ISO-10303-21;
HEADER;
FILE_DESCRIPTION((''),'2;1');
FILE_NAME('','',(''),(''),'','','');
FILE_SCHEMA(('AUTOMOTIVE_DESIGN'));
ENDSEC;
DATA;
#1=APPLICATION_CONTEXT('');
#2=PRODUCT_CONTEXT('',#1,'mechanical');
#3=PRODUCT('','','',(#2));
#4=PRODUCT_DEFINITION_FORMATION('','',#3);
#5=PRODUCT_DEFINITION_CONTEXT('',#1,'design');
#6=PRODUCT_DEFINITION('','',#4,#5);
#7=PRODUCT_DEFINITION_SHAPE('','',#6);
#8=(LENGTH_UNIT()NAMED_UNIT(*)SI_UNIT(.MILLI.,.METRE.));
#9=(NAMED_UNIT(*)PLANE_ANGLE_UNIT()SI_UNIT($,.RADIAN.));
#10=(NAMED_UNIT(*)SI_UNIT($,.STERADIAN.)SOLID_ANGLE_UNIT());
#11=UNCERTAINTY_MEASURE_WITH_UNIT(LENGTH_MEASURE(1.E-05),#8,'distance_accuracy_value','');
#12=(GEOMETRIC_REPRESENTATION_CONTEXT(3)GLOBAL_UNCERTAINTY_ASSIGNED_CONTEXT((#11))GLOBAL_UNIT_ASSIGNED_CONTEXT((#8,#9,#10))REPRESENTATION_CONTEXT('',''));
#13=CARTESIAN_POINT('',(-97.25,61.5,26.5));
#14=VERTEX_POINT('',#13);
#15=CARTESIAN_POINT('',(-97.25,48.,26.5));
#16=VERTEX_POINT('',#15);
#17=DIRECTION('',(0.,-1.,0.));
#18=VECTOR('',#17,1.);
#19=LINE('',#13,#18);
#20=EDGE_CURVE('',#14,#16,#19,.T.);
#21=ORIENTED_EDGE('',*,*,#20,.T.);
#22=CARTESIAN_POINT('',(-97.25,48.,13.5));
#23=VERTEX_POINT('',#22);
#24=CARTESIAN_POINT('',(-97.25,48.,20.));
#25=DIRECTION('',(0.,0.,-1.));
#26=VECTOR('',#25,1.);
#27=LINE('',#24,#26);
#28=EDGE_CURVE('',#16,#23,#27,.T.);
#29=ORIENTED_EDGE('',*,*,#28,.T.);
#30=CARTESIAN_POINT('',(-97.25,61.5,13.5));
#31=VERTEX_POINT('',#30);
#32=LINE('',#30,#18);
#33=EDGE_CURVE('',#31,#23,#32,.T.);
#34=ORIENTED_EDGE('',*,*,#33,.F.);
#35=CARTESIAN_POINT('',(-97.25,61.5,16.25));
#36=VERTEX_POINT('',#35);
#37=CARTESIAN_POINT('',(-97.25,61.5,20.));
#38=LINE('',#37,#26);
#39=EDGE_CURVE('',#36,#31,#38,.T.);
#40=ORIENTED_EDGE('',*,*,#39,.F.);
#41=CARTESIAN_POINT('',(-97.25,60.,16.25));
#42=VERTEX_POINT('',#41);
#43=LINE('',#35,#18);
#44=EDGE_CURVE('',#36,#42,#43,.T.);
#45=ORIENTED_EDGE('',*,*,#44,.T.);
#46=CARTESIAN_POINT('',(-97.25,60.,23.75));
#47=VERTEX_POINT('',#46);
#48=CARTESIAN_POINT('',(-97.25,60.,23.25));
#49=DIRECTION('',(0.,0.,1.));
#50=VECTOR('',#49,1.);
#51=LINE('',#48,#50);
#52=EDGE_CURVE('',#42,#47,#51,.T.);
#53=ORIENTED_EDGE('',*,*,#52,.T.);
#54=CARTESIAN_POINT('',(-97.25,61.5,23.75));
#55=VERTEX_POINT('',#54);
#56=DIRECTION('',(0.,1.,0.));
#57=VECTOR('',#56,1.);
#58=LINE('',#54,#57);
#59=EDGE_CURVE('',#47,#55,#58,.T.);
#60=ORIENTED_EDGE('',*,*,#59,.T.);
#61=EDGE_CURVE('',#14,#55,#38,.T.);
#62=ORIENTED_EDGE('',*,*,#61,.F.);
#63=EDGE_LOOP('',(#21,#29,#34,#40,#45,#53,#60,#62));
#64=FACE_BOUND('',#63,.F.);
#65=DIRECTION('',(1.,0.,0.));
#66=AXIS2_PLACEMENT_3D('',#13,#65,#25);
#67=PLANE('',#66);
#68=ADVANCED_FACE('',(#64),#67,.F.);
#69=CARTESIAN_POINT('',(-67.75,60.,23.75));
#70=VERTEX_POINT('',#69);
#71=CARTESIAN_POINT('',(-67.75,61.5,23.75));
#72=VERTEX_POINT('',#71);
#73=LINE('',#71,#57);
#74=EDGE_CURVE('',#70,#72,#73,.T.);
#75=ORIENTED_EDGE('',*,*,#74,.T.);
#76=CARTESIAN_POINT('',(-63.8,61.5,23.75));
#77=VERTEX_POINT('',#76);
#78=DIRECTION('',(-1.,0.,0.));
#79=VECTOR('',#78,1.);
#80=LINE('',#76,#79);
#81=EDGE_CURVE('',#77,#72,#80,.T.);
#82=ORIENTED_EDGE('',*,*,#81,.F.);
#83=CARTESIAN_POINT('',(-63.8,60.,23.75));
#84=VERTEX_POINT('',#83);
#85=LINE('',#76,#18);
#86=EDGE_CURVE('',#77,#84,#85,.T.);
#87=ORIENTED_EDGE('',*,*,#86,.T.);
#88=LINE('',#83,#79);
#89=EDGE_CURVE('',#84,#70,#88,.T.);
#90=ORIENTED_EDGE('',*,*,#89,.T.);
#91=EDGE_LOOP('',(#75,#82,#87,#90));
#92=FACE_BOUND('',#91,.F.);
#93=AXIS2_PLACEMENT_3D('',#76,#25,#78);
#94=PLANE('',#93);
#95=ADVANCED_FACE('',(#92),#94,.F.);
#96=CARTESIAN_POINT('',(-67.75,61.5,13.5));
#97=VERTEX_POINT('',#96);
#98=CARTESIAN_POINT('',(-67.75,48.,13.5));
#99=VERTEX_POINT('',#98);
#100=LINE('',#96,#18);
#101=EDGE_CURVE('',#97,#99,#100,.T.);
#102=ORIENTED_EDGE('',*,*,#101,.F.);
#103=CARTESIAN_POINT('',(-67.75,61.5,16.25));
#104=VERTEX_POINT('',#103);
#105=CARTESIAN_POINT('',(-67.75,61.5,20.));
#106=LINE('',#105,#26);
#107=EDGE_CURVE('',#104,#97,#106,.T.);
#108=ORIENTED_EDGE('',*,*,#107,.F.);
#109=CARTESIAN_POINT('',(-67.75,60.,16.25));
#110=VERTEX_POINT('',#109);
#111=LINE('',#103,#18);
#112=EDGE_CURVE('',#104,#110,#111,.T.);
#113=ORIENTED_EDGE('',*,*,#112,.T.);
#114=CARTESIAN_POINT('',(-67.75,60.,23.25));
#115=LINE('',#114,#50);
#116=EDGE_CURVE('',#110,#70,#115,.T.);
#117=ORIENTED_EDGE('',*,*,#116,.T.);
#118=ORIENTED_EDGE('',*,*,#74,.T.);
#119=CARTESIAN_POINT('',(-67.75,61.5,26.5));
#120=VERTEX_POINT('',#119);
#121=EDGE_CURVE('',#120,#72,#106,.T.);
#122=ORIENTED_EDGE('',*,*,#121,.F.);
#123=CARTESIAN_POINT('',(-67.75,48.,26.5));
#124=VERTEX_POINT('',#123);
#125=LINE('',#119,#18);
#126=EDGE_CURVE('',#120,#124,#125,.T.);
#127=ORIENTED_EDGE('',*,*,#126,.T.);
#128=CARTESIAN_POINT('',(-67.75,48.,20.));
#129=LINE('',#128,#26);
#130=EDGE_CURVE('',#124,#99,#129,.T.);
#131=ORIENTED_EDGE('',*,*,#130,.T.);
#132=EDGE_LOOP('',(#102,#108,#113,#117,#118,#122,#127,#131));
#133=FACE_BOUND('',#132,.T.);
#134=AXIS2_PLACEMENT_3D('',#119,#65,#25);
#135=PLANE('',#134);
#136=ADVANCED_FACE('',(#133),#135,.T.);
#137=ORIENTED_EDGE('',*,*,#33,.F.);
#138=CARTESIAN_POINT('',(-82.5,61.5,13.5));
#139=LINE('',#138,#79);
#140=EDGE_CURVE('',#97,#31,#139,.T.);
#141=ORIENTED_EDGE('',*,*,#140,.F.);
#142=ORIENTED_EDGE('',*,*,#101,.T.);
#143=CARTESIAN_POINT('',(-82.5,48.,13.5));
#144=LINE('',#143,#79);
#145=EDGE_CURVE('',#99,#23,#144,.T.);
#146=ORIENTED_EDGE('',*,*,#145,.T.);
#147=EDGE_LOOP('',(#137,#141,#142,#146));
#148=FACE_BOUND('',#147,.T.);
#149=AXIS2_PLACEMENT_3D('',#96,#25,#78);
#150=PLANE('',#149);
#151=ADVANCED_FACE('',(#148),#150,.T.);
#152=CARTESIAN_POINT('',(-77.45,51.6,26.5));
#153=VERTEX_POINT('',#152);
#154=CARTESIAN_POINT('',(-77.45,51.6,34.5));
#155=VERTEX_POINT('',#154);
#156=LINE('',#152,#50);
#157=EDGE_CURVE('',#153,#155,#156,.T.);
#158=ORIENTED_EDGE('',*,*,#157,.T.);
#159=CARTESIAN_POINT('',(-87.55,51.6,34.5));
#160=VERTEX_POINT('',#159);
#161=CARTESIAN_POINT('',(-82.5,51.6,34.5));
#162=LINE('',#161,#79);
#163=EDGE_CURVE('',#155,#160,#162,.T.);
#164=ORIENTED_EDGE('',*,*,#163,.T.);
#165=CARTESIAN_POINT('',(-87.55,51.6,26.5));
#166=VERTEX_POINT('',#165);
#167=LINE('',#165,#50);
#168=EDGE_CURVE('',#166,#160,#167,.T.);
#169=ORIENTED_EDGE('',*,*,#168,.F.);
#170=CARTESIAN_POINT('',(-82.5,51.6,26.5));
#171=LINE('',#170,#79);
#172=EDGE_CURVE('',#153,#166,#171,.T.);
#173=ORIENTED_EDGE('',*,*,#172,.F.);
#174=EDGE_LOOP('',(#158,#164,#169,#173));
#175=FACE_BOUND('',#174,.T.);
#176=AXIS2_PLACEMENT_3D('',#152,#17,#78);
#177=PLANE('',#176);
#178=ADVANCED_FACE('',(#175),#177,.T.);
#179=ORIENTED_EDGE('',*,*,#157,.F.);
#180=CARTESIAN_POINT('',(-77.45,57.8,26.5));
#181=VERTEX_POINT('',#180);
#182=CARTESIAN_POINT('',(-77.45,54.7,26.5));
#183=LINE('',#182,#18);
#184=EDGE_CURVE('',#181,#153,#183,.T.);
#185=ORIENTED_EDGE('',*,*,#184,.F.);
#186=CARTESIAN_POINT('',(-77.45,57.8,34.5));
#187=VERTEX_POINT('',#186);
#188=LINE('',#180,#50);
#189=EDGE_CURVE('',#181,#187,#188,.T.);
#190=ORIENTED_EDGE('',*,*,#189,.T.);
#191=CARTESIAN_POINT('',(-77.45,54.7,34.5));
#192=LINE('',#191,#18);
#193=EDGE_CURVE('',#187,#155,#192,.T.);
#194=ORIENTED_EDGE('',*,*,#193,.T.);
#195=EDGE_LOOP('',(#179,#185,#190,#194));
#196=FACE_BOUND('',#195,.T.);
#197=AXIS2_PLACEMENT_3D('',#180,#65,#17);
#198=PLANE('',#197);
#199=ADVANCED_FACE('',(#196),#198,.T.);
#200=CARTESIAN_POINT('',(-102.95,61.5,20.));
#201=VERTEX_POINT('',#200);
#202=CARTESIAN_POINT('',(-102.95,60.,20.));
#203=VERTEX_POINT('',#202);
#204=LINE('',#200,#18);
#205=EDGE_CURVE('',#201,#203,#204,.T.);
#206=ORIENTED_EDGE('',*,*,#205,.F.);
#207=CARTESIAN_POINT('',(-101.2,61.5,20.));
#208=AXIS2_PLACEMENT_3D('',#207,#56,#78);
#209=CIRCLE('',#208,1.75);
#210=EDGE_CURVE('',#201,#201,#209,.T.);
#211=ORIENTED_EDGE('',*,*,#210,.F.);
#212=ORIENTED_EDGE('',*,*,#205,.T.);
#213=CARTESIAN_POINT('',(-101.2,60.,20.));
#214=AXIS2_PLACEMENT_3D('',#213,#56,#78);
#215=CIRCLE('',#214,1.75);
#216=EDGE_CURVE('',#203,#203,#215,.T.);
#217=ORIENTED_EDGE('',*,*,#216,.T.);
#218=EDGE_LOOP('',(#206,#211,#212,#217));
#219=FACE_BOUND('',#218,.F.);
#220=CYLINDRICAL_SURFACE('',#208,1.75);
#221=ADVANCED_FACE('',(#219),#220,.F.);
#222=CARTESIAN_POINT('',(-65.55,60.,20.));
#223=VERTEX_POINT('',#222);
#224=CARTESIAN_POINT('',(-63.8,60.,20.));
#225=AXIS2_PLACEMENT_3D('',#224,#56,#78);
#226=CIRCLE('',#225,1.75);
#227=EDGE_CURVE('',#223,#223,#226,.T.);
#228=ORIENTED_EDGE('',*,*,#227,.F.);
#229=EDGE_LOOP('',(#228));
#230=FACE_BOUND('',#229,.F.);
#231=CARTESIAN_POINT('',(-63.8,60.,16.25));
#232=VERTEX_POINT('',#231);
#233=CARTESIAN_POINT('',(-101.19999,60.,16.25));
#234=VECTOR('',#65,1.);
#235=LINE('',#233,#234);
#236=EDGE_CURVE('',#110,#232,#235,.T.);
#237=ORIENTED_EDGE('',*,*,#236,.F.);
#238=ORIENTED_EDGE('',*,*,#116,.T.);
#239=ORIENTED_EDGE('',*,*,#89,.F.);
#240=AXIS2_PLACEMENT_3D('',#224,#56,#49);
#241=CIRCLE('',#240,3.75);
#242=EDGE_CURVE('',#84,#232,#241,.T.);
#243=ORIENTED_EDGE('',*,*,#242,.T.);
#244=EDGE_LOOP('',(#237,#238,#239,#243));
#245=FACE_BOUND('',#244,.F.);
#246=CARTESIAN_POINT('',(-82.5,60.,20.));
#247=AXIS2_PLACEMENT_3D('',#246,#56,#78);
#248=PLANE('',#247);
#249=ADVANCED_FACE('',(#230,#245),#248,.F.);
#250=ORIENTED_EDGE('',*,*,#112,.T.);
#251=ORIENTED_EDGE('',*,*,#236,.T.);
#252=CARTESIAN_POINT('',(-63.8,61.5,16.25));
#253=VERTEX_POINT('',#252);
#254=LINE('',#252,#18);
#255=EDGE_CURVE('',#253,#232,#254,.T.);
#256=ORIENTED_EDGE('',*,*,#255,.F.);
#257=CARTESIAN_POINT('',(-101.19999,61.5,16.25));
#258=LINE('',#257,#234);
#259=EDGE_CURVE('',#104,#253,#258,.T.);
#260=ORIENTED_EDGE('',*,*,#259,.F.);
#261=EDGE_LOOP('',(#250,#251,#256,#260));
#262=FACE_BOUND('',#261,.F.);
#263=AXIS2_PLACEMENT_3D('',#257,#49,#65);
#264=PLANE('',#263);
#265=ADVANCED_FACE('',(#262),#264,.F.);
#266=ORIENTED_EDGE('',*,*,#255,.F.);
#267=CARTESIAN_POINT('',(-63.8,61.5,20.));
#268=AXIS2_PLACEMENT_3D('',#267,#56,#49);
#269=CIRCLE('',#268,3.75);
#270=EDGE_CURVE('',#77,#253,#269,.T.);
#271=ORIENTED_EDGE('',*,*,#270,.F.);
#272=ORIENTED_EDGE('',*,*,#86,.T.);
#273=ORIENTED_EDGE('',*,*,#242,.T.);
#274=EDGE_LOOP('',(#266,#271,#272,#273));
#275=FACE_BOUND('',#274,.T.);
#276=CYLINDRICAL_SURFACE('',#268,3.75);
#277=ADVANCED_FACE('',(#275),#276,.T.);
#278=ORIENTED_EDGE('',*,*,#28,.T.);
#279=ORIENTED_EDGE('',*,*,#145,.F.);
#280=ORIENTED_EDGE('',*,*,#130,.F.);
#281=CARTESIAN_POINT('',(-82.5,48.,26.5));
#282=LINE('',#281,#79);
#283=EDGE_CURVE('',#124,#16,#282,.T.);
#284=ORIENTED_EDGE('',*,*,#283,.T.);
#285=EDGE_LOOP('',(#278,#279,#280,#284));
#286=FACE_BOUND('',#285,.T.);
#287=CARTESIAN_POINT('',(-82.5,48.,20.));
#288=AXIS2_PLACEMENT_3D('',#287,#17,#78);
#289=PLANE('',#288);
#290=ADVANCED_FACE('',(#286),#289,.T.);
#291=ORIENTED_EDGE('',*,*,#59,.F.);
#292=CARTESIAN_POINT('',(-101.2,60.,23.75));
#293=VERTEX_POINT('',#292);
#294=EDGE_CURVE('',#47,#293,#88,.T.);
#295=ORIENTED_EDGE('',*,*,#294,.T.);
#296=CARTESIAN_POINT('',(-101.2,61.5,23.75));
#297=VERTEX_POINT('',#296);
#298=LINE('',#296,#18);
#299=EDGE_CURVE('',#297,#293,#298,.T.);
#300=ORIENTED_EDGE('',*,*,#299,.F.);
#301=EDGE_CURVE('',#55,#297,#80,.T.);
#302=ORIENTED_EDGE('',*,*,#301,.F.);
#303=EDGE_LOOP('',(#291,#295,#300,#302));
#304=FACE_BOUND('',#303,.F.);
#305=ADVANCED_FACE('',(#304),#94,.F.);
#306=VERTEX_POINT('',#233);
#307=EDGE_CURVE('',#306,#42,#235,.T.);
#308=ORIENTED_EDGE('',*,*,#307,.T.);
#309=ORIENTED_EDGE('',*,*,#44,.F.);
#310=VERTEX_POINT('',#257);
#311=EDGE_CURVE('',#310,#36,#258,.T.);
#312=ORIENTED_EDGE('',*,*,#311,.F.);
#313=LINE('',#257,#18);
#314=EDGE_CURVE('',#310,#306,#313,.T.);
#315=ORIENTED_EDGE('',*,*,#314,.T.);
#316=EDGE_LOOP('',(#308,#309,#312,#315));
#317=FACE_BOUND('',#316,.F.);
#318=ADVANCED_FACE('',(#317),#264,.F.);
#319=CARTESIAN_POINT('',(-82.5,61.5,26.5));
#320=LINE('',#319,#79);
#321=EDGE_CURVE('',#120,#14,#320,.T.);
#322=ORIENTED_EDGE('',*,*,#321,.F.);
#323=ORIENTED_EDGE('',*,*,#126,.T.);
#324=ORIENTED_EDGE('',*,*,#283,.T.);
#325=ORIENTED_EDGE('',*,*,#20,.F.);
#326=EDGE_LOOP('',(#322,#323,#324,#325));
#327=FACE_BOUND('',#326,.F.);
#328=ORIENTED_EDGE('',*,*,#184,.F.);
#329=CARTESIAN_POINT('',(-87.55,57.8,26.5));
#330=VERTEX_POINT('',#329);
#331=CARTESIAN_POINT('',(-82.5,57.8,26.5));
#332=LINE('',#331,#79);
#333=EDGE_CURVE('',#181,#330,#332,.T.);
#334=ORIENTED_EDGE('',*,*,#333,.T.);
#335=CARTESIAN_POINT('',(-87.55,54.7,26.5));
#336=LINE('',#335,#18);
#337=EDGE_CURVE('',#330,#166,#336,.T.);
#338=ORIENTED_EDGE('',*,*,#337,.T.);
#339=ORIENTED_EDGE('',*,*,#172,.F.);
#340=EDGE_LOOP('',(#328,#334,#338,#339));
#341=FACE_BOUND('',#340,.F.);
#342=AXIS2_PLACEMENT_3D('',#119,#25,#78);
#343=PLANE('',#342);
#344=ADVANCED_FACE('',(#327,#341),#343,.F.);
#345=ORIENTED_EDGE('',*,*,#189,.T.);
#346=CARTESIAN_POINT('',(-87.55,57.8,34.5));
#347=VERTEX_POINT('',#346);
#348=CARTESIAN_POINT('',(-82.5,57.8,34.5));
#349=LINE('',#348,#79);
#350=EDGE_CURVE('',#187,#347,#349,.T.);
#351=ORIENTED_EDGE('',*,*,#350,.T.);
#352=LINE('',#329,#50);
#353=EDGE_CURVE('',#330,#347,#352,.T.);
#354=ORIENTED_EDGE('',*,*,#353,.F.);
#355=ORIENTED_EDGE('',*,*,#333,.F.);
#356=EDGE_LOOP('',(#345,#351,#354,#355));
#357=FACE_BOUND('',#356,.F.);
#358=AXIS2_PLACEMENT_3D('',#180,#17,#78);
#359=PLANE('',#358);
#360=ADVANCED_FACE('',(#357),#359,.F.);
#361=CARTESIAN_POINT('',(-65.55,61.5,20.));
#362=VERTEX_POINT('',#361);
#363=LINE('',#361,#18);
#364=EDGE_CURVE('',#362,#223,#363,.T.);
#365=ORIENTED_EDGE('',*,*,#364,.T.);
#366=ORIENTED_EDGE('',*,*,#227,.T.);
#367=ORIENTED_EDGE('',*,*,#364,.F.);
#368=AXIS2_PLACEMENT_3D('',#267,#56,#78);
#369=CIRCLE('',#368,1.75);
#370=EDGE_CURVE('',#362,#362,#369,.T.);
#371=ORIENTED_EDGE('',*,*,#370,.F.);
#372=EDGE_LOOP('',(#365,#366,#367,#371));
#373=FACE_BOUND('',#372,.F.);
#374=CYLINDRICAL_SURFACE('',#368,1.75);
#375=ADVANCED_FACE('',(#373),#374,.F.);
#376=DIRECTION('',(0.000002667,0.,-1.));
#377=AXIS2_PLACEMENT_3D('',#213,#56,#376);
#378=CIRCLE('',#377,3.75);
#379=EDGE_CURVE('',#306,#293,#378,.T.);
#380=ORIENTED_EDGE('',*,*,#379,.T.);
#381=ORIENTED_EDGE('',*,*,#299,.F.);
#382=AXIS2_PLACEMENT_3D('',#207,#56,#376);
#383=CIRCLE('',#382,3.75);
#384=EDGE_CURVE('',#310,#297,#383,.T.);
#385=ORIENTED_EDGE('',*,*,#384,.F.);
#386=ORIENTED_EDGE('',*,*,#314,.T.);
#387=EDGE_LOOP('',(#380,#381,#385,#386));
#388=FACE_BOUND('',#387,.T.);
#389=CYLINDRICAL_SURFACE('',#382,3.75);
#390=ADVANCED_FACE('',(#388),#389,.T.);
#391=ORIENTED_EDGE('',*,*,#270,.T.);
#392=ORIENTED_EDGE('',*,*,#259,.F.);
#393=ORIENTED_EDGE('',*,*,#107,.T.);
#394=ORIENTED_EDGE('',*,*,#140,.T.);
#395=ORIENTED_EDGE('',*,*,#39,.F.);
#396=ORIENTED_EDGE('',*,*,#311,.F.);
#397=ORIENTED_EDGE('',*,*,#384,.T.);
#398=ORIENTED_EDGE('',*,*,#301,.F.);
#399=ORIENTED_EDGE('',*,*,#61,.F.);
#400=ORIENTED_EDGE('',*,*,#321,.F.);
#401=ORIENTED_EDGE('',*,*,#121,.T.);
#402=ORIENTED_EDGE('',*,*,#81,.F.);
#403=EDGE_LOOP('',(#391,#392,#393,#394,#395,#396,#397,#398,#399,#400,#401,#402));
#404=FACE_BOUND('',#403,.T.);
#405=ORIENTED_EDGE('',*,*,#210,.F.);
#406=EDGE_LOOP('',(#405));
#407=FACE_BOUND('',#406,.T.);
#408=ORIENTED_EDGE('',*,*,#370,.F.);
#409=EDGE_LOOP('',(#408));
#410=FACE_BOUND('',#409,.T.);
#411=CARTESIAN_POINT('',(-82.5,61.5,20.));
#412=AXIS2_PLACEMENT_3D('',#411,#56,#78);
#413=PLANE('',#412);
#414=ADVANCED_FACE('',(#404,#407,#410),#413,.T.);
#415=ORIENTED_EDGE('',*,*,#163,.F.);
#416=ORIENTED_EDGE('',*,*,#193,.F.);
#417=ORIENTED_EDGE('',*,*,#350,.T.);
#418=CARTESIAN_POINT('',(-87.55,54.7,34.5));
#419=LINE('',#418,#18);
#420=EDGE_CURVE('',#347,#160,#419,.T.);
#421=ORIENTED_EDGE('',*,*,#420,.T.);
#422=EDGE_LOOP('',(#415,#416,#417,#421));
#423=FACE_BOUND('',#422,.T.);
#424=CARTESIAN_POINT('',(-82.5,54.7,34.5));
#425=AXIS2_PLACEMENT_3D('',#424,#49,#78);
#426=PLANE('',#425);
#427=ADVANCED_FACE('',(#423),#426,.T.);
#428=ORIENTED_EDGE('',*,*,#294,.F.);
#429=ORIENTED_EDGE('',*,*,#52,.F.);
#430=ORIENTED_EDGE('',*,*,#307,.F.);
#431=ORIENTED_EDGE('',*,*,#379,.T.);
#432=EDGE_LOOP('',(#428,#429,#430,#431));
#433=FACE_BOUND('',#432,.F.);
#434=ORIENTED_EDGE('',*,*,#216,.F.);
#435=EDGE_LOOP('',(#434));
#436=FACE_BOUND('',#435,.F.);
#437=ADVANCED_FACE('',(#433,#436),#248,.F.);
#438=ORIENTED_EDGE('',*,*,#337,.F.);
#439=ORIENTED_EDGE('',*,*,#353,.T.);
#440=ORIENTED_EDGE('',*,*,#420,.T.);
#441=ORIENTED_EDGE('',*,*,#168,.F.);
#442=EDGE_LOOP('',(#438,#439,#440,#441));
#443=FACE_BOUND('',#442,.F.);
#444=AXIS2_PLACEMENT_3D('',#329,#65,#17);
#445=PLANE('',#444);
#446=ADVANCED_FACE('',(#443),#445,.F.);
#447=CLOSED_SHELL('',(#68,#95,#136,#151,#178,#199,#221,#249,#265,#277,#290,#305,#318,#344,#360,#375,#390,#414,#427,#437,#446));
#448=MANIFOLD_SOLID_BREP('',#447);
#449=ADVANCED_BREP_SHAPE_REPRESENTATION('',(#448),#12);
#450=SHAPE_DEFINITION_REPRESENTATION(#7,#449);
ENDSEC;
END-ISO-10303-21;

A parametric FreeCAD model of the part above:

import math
import FreeCAD as App
import Part
import Sketcher

V = App.Vector
Q = App.Units.Quantity


def add_polygon(sketch, points):
    """Adds a closed chain of lines whose ends are joined by coincident constraints."""
    first, n = sketch.GeometryCount, len(points)
    for a, b in zip(points, points[1:] + points[:1]):
        sketch.addGeometry(Part.LineSegment(App.Vector(*a, 0), App.Vector(*b, 0)), False)
    for i in range(n):
        sketch.addConstraint(Sketcher.Constraint("Coincident", first + i, 2, first + (i + 1) % n, 1))

doc = App.newDocument("Part")
body = doc.addObject("PartDesign::Body", "Body")

sketch1 = doc.addObject("Sketcher::SketchObject", "Sketch")
body.addObject(sketch1)
sketch1.AttachmentSupport = (doc.XZ_Plane, [""])
sketch1.MapMode = "FlatFace"
add_polygon(sketch1, [(-14.75, 6.5), (-14.75, -6.5), (14.75, -6.5), (14.75, 6.5)])
sketch1.addConstraint(Sketcher.Constraint("Vertical", 0))
sketch1.addConstraint(Sketcher.Constraint("Horizontal", 1))
sketch1.addConstraint(Sketcher.Constraint("Vertical", 2))
sketch1.addConstraint(Sketcher.Constraint("Horizontal", 3))
sketch1.addConstraint(Sketcher.Constraint("Symmetric", 0, 2, 2, 2, -1, 1))
sketch1.addConstraint(Sketcher.Constraint("DistanceY", 0, 2, 0, 1, Q("13 mm")))
sketch1.addConstraint(Sketcher.Constraint("DistanceX", 1, 1, 1, 2, Q("29.5 mm")))
pad1 = doc.addObject("PartDesign::Pad", "Pad")
body.addObject(pad1)
pad1.Profile = sketch1
pad1.Length = 13.5

sketch2 = doc.addObject("Sketcher::SketchObject", "Sketch001")
body.addObject(sketch2)
sketch2.AttachmentSupport = (doc.XZ_Plane, [""])
sketch2.MapMode = "FlatFace"
sketch2.addGeometry(Part.ArcOfCircle(Part.Circle(V(-18.7, 0, 0), V(0, 0, 1), 3.75), math.radians(90), math.radians(270)), False)
sketch2.addGeometry(Part.LineSegment(V(-18.7, 3.75, 0), V(18.69999, 3.75, 0)), False)
sketch2.addGeometry(Part.ArcOfCircle(Part.Circle(V(18.7, 0, 0), V(0, 0, 1), 3.75), math.radians(-90), math.radians(90.000153)), False)
sketch2.addGeometry(Part.LineSegment(V(18.7, -3.75, 0), V(-18.7, -3.75, 0)), False)
sketch2.addGeometry(Part.Circle(V(-18.7, 0, 0), V(0, 0, 1), 1.75), False)
sketch2.addGeometry(Part.Circle(V(18.7, 0, 0), V(0, 0, 1), 1.75), False)
sketch2.addConstraint(Sketcher.Constraint("Tangent", 0, 1, 1, 1))
sketch2.addConstraint(Sketcher.Constraint("Coincident", 1, 2, 2, 2))
sketch2.addConstraint(Sketcher.Constraint("Tangent", 2, 1, 3, 1))
sketch2.addConstraint(Sketcher.Constraint("Tangent", 3, 2, 0, 2))
sketch2.addConstraint(Sketcher.Constraint("Horizontal", 1))
sketch2.addConstraint(Sketcher.Constraint("Horizontal", 3))
sketch2.addConstraint(Sketcher.Constraint("Coincident", 4, 3, 0, 3))
sketch2.addConstraint(Sketcher.Constraint("Coincident", 5, 3, 2, 3))
sketch2.addConstraint(Sketcher.Constraint("Equal", 4, 5))
sketch2.addConstraint(Sketcher.Constraint("Symmetric", 0, 3, 2, 3, -1, 1))
sketch2.addConstraint(Sketcher.Constraint("Diameter", 4, Q("3.5 mm")))
sketch2.addConstraint(Sketcher.Constraint("Radius", 0, Q("3.75 mm")))
sketch2.addConstraint(Sketcher.Constraint("DistanceX", 3, 2, 3, 1, Q("37.4 mm")))
sketch2.addConstraint(Sketcher.Constraint("DistanceX", 1, 1, 1, 2, Q("37.39999 mm")))
pad2 = doc.addObject("PartDesign::Pad", "Pad001")
body.addObject(pad2)
pad2.Profile = sketch2
pad2.Length = 1.5

sketch3 = doc.addObject("Sketcher::SketchObject", "Sketch002")
body.addObject(sketch3)
sketch3.AttachmentSupport = (doc.XY_Plane, [""])
sketch3.MapMode = "FlatFace"
sketch3.AttachmentOffset = App.Placement(V(0, 0, -6.5), App.Rotation())
add_polygon(sketch3, [(-5.05, -9.9), (-5.05, -3.7), (5.05, -3.7), (5.05, -9.9)])
sketch3.addConstraint(Sketcher.Constraint("Vertical", 0))
sketch3.addConstraint(Sketcher.Constraint("Horizontal", 1))
sketch3.addConstraint(Sketcher.Constraint("Vertical", 2))
sketch3.addConstraint(Sketcher.Constraint("Horizontal", 3))
sketch3.addConstraint(Sketcher.Constraint("DistanceX", 1, 1, 1, 2, Q("10.1 mm")))
sketch3.addConstraint(Sketcher.Constraint("DistanceY", 0, 1, 0, 2, Q("6.2 mm")))
sketch3.addConstraint(Sketcher.Constraint("DistanceY", 0, 2, -1, 1, Q("3.7 mm")))
sketch3.addConstraint(Sketcher.Constraint("DistanceX", 0, 2, -1, 1, Q("5.05 mm")))
pad3 = doc.addObject("PartDesign::Pad", "Pad002")
body.addObject(pad3)
pad3.Profile = sketch3
pad3.Length = 8
pad3.Reversed = True
body2 = doc.addObject("PartDesign::Body", "Body001")
doc.recompute()

body.Placement = App.Placement(V(-82.5, 61.5, 20), App.Rotation(V(0, 1, 0), 180))
boolean = doc.addObject("PartDesign::Boolean", "Boolean")
body2.addObject(boolean)
boolean.Type = "Fuse"
boolean.addObjects([body])

doc.recompute()
